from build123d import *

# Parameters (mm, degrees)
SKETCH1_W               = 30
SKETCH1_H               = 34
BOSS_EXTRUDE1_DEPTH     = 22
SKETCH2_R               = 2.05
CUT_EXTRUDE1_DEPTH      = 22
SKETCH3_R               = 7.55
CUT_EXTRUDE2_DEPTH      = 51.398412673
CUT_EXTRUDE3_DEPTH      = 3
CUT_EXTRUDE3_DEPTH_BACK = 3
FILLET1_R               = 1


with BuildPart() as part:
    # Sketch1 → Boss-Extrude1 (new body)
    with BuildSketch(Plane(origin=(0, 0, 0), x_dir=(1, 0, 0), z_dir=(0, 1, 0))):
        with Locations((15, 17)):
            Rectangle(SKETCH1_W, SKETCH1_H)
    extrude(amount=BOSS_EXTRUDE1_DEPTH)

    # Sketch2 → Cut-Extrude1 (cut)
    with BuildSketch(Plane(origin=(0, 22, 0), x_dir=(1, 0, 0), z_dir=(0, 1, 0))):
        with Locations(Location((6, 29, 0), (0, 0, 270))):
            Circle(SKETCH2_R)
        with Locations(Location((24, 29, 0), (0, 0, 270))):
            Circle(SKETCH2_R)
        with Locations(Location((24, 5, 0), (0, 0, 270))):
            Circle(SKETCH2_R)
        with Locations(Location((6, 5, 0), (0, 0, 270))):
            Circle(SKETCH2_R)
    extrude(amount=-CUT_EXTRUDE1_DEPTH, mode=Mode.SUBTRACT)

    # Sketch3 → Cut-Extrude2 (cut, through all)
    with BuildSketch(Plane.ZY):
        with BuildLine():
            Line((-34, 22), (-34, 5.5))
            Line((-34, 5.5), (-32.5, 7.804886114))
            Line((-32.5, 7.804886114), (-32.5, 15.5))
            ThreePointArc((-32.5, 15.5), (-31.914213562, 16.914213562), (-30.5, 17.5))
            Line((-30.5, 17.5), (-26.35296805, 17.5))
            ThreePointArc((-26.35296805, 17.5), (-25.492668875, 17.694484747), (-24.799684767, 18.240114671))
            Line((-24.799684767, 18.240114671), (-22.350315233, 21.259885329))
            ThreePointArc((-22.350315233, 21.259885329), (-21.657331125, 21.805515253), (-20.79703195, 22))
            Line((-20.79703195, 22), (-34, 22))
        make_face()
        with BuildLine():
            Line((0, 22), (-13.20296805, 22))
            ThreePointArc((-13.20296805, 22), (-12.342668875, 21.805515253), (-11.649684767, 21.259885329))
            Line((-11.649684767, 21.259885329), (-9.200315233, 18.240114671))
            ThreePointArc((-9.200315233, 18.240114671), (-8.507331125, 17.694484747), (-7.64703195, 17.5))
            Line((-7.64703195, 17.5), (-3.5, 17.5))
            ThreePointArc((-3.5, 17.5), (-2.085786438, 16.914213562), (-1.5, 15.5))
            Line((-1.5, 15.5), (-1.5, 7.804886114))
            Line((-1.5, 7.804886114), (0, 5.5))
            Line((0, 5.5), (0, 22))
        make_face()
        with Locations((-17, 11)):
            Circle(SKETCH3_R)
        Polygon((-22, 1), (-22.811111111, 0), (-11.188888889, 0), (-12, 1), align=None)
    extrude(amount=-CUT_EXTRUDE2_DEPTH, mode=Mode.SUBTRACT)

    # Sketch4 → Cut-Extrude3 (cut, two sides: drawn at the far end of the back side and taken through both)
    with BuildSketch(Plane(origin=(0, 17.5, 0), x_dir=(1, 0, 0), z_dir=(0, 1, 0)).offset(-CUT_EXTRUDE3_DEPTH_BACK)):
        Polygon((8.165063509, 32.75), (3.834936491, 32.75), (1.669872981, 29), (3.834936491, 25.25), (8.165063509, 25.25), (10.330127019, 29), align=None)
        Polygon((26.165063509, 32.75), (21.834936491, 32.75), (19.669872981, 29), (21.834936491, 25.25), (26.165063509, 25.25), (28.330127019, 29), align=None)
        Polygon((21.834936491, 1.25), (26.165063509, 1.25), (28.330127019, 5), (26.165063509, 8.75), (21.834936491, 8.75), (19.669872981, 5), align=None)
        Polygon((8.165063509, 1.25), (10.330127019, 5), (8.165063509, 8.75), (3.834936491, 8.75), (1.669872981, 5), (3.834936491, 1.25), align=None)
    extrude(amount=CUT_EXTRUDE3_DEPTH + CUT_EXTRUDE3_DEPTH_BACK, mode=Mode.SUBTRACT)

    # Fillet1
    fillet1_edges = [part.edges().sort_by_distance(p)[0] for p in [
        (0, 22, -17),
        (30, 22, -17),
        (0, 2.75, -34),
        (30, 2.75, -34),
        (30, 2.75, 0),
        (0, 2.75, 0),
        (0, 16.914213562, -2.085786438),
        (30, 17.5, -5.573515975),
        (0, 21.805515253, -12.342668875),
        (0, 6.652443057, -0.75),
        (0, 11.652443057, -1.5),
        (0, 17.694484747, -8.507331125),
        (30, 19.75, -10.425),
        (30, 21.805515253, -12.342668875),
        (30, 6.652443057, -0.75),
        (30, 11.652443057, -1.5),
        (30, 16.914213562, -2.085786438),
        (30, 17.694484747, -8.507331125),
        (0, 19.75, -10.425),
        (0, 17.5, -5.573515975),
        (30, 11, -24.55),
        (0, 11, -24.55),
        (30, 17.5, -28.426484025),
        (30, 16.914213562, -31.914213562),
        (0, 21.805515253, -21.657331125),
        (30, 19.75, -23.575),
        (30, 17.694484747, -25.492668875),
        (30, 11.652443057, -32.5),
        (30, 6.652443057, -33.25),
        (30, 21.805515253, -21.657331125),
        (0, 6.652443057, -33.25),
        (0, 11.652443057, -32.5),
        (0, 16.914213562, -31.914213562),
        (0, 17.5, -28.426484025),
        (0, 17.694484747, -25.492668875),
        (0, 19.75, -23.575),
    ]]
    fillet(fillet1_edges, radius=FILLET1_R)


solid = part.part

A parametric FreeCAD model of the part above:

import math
import FreeCAD as App
import Part
import Sketcher
Q = App.Units.Quantity


def edges_at(feature, points):
    """Names of the edges that pass closest to the given points."""
    edges = feature.Shape.Edges
    near = lambda p: min(range(len(edges)), key=lambda i: edges[i].distToShape(Part.Vertex(*p))[0])
    return sorted({f"Edge{near(p) + 1}" for p in points})


def add_polygon(sketch, points):
    """Adds a closed chain of lines whose ends are joined by coincident constraints."""
    first, n = sketch.GeometryCount, len(points)
    for a, b in zip(points, points[1:] + points[:1]):
        sketch.addGeometry(Part.LineSegment(App.Vector(*a, 0), App.Vector(*b, 0)), False)
    for i in range(n):
        sketch.addConstraint(Sketcher.Constraint("Coincident", first + i, 2, first + (i + 1) % n, 1))

doc = App.newDocument("Part")
body = doc.addObject("PartDesign::Body", "Body")

sketch1 = body.newObject("Sketcher::SketchObject", "Sketch")
sketch1.AttachmentSupport = (doc.getObject("XZ_Plane"), [""])
sketch1.MapMode = "FlatFace"
add_polygon(sketch1, [(0, -34), (0, 0), (30, 0), (30, -34)])
sketch1.addConstraint([
    Sketcher.Constraint("Vertical", 0),
    Sketcher.Constraint("Horizontal", 1),
    Sketcher.Constraint("Vertical", 2),
    Sketcher.Constraint("Horizontal", 3),
    Sketcher.Constraint("Coincident", 0, 2, -1, 1),
    Sketcher.Constraint("DistanceX", 1, 1, 1, 2, Q("30 mm")),
    Sketcher.Constraint("DistanceY", 0, 1, 0, 2, Q("34 mm")),
])
pad1 = body.newObject("PartDesign::Pad", "Pad")
pad1.Profile = sketch1
pad1.Length = 22
pad1.Reversed = True

sketch2 = body.newObject("Sketcher::SketchObject", "Sketch001")
sketch2.AttachmentSupport = (doc.getObject("XZ_Plane"), [""])
sketch2.MapMode = "FlatFace"
sketch2.AttachmentOffset = App.Placement(App.Vector(0, 0, -22), App.Rotation())
sketch2.addGeometry([
    Part.Circle(App.Vector(6, -29, 0), App.Vector(0, 0, 1), 2),
    Part.Circle(App.Vector(24, -29, 0), App.Vector(0, 0, 1), 2),
    Part.Circle(App.Vector(24, -5, 0), App.Vector(0, 0, 1), 2),
    Part.Circle(App.Vector(6, -5, 0), App.Vector(0, 0, 1), 2),
], False)
sketch2.addConstraint([
    Sketcher.Constraint("Equal", 0, 1),
    Sketcher.Constraint("Equal", 1, 2),
    Sketcher.Constraint("Equal", 2, 3),
    Sketcher.Constraint("Horizontal", 0, 3, 1, 3),
    Sketcher.Constraint("Horizontal", 2, 3, 3, 3),
    Sketcher.Constraint("Vertical", 1, 3, 2, 3),
    Sketcher.Constraint("Vertical", 0, 3, 3, 3),
    Sketcher.Constraint("Diameter", 0, Q("4.1 mm")),
    Sketcher.Constraint("DistanceX", -1, 1, 0, 3, Q("6 mm")),
    Sketcher.Constraint("DistanceY", 0, 3, -1, 1, Q("29 mm")),
    Sketcher.Constraint("DistanceX", -1, 1, 1, 3, Q("24 mm")),
    Sketcher.Constraint("DistanceY", 2, 3, -1, 1, Q("5 mm")),
])
pocket1 = body.newObject("PartDesign::Pocket", "Pocket")
pocket1.Profile = sketch2
pocket1.Length = 22
pocket1.Reversed = True

sketch3 = body.newObject("Sketcher::SketchObject", "Sketch002")
sketch3.AttachmentSupport = (doc.getObject("YZ_Plane"), [""])
sketch3.MapMode = "FlatFace"
sketch3.addGeometry(Part.LineSegment(App.Vector(22, -34, 0), App.Vector(5.5, -34, 0)), False)
sketch3.addGeometry(Part.LineSegment(App.Vector(5.5, -34, 0), App.Vector(7.8, -32.5, 0)), False)
sketch3.addGeometry(Part.LineSegment(App.Vector(7.8, -32.5, 0), App.Vector(15.5, -32.5, 0)), False)
sketch3.addGeometry(Part.ArcOfCircle(Part.Circle(App.Vector(15.5, -30.5, 0), App.Vector(0, 0, 1), 2), math.radians(-90), math.radians(0)), False)
sketch3.addGeometry(Part.LineSegment(App.Vector(17.5, -30.5, 0), App.Vector(17.5, -26.4, 0)), False)
sketch3.addGeometry(Part.ArcOfCircle(Part.Circle(App.Vector(19.5, -26.4, 0), App.Vector(0, 0, 1), 2), math.radians(129), math.radians(180)), False)
sketch3.addGeometry(Part.LineSegment(App.Vector(18.2, -24.8, 0), App.Vector(21.3, -22.4, 0)), False)
sketch3.addGeometry(Part.ArcOfCircle(Part.Circle(App.Vector(20, -20.8, 0), App.Vector(0, 0, 1), 2), math.radians(-51), math.radians(0)), False)
sketch3.addGeometry(Part.LineSegment(App.Vector(22, -20.8, 0), App.Vector(22, -34, 0)), False)
sketch3.addGeometry(Part.LineSegment(App.Vector(22, 0, 0), App.Vector(22, -13.2, 0)), False)
sketch3.addGeometry(Part.ArcOfCircle(Part.Circle(App.Vector(20, -13.2, 0), App.Vector(0, 0, 1), 2), math.radians(0), math.radians(51)), False)
sketch3.addGeometry(Part.LineSegment(App.Vector(21.3, -11.6, 0), App.Vector(18.2, -9.2, 0)), False)
sketch3.addGeometry(Part.ArcOfCircle(Part.Circle(App.Vector(19.5, -7.6, 0), App.Vector(0, 0, 1), 2), math.radians(-180), math.radians(-129)), False)
sketch3.addGeometry(Part.LineSegment(App.Vector(17.5, -7.6, 0), App.Vector(17.5, -3.5, 0)), False)
sketch3.addGeometry(Part.ArcOfCircle(Part.Circle(App.Vector(15.5, -3.5, 0), App.Vector(0, 0, 1), 2), math.radians(0), math.radians(90)), False)
sketch3.addGeometry(Part.LineSegment(App.Vector(15.5, -1.5, 0), App.Vector(7.8, -1.5, 0)), False)
sketch3.addGeometry(Part.LineSegment(App.Vector(7.8, -1.5, 0), App.Vector(5.5, 0, 0)), False)
sketch3.addGeometry(Part.LineSegment(App.Vector(5.5, 0, 0), App.Vector(22, 0, 0)), False)
sketch3.addGeometry(Part.Circle(App.Vector(11, -17, 0), App.Vector(0, 0, 1), 7.5), False)
add_polygon(sketch3, [(1, -22), (0, -22.8), (0, -11.2), (1, -12)])
sketch3.addConstraint([
    Sketcher.Constraint("Coincident", 0, 2, 1, 1),
    Sketcher.Constraint("Coincident", 1, 2, 2, 1),
    Sketcher.Constraint("Tangent", 2, 2, 3, 1),
    Sketcher.Constraint("Tangent", 3, 2, 4, 1),
    Sketcher.Constraint("Tangent", 4, 2, 5, 2),
    Sketcher.Constraint("Tangent", 5, 1, 6, 1),
    Sketcher.Constraint("Tangent", 6, 2, 7, 1),
    Sketcher.Constraint("Tangent", 7, 2, 8, 1),
    Sketcher.Constraint("Coincident", 8, 2, 0, 1),
    Sketcher.Constraint("Tangent", 9, 2, 10, 1),
    Sketcher.Constraint("Tangent", 10, 2, 11, 1),
    Sketcher.Constraint("Tangent", 11, 2, 12, 2),
    Sketcher.Constraint("Tangent", 12, 1, 13, 1),
    Sketcher.Constraint("Tangent", 13, 2, 14, 1),
    Sketcher.Constraint("Tangent", 14, 2, 15, 1),
    Sketcher.Constraint("Coincident", 15, 2, 16, 1),
    Sketcher.Constraint("Coincident", 16, 2, 17, 1),
    Sketcher.Constraint("Coincident", 17, 2, 9, 1),
    Sketcher.Constraint("Horizontal", 0),
    Sketcher.Constraint("Horizontal", 2),
    Sketcher.Constraint("Vertical", 4),
    Sketcher.Constraint("Vertical", 8),
    Sketcher.Constraint("Vertical", 9),
    Sketcher.Constraint("Vertical", 13),
    Sketcher.Constraint("Horizontal", 15),
    Sketcher.Constraint("Horizontal", 17),
    Sketcher.Constraint("Vertical", 20),
    Sketcher.Constraint("Vertical", 22),
    Sketcher.Constraint("Equal", 3, 5),
    Sketcher.Constraint("Equal", 5, 7),
    Sketcher.Constraint("Equal", 7, 10),
    Sketcher.Constraint("Equal", 10, 12),
    Sketcher.Constraint("Equal", 12, 14),
    Sketcher.Constraint("PointOnObject", 16, 2, -1),
    Sketcher.Constraint("PointOnObject", 19, 2, -2),
    Sketcher.Constraint("Parallel", 6, 19),
    Sketcher.Constraint("Parallel", 11, 21),
    Sketcher.Constraint("Vertical", 7, 3, 10, 3),
    Sketcher.Constraint("Vertical", 5, 3, 12, 3),
    Sketcher.Constraint("Vertical", 6, 2, 10, 2),
    Sketcher.Constraint("Vertical", 1, 2, 15, 2),
    Sketcher.Constraint("Vertical", 0, 2, 16, 2),
    Sketcher.Constraint("Equal", 8, 9),
    Sketcher.Constraint("Equal", 4, 13),
    Sketcher.Constraint("Radius", 3, Q("2 mm")),
    Sketcher.Constraint("Diameter", 18, Q("15.1 mm")),
    Sketcher.Constraint("DistanceY", 22, 2, 22, 1, Q("10 mm")),
    Sketcher.Constraint("DistanceX", 0, 2, 0, 1, Q("16.5 mm")),
    Sketcher.Constraint("DistanceX", -1, 1, 7, 3, Q("20 mm")),
    Sketcher.Constraint("DistanceX", -1, 1, 18, 3, Q("11 mm")),
    Sketcher.Constraint("DistanceY", 18, 3, -1, 1, Q("17 mm")),
    Sketcher.Constraint("DistanceY", 0, 2, -1, 1, Q("34 mm")),
    Sketcher.Constraint("DistanceX", -1, 1, 21, 2, Q("1 mm")),
    Sketcher.Constraint("DistanceY", 21, 2, -1, 1, Q("12 mm")),
    Sketcher.Constraint("DistanceY", 3, 3, 14, 3, Q("27 mm")),
    Sketcher.Constraint("DistanceX", 0, 2, 3, 3, Q("10 mm")),
    Sketcher.Constraint("Distance", 1, Q("2.75 mm")),
    Sketcher.Constraint("DistanceY", 5, 3, 10, 3, Q("13.15 mm")),
    Sketcher.Constraint("DistanceY", 4, 1, 4, 2, Q("4.147032 mm")),
])
pocket2 = body.newObject("PartDesign::Pocket", "Pocket001")
pocket2.Profile = sketch3
pocket2.Type = "ThroughAll"
pocket2.Reversed = True

sketch4 = body.newObject("Sketcher::SketchObject", "Sketch003")
sketch4.AttachmentSupport = (doc.getObject("XZ_Plane"), [""])
sketch4.MapMode = "FlatFace"
sketch4.AttachmentOffset = App.Placement(App.Vector(0, 0, -17.5), App.Rotation())
add_polygon(sketch4, [(8.2, -32.8), (3.8, -32.8), (1.7, -29), (3.8, -25.2), (8.2, -25.2), (10.3, -29)])
add_polygon(sketch4, [(26.2, -32.8), (21.8, -32.8), (19.7, -29), (21.8, -25.2), (26.2, -25.2), (28.3, -29)])
add_polygon(sketch4, [(21.8, -1.2), (26.2, -1.2), (28.3, -5), (26.2, -8.8), (21.8, -8.8), (19.7, -5)])
add_polygon(sketch4, [(8.2, -1.2), (10.3, -5), (8.2, -8.8), (3.8, -8.8), (1.7, -5), (3.8, -1.2)])
sketch4.addConstraint([
    Sketcher.Constraint("Horizontal", 0),
    Sketcher.Constraint("Horizontal", 3),
    Sketcher.Constraint("Horizontal", 6),
    Sketcher.Constraint("Horizontal", 9),
    Sketcher.Constraint("Horizontal", 12),
    Sketcher.Constraint("Horizontal", 15),
    Sketcher.Constraint("Horizontal", 20),
    Sketcher.Constraint("Horizontal", 23),
    Sketcher.Constraint("Parallel", 1, 4),
    Sketcher.Constraint("Parallel", 2, 5),
    Sketcher.Constraint("Parallel", 4, 7),
    Sketcher.Constraint("Parallel", 5, 8),
    Sketcher.Constraint("Parallel", 7, 10),
    Sketcher.Constraint("Parallel", 8, 11),
    Sketcher.Constraint("Parallel", 10, 13),
    Sketcher.Constraint("Parallel", 11, 14),
    Sketcher.Constraint("Parallel", 13, 16),
    Sketcher.Constraint("Parallel", 14, 17),
    Sketcher.Constraint("Parallel", 16, 18),
    Sketcher.Constraint("Parallel", 17, 19),
    Sketcher.Constraint("Parallel", 18, 21),
    Sketcher.Constraint("Parallel", 19, 22),
    Sketcher.Constraint("Horizontal", 1, 2, 4, 2),
    Sketcher.Constraint("Horizontal", 5, 2, 6, 2),
    Sketcher.Constraint("Horizontal", 4, 2, 7, 2),
    Sketcher.Constraint("Horizontal", 3, 2, 8, 2),
    Sketcher.Constraint("Horizontal", 7, 2, 10, 2),
    Sketcher.Constraint("Horizontal", 13, 2, 16, 2),
    Sketcher.Constraint("Horizontal", 16, 2, 18, 2),
    Sketcher.Constraint("Horizontal", 15, 2, 19, 2),
    Sketcher.Constraint("Horizontal", 18, 2, 21, 2),
    Sketcher.Constraint("Horizontal", 17, 2, 22, 2),
    Sketcher.Constraint("Vertical", 0, 2, 2, 2),
    Sketcher.Constraint("Vertical", 3, 2, 5, 2),
    Sketcher.Constraint("Vertical", 11, 2, 12, 2),
    Sketcher.Constraint("Vertical", 10, 2, 13, 2),
    Sketcher.Constraint("Vertical", 12, 2, 14, 2),
    Sketcher.Constraint("Vertical", 8, 2, 15, 2),
    Sketcher.Constraint("Vertical", 4, 2, 18, 2),
    Sketcher.Constraint("Vertical", 2, 2, 20, 2),
    Sketcher.Constraint("Equal", 3, 6),
    Sketcher.Constraint("Angle", 1, Q("120 deg")),
    Sketcher.Constraint("DistanceY", 1, 2, -1, 1, Q("29 mm")),
    Sketcher.Constraint("DistanceY", 13, 2, -1, 1, Q("5 mm")),
    Sketcher.Constraint("DistanceX", 0, 2, 6, 2, Q("18 mm")),
    Sketcher.Constraint("DistanceY", 0, 2, 2, 2, Q("7.5 mm")),
    Sketcher.Constraint("DistanceX", 0, 2, 0, 1, Q("4.330127 mm")),
    Sketcher.Constraint("DistanceX", -1, 1, 0, 2, Q("3.834936 mm")),
])
pocket3 = body.newObject("PartDesign::Pocket", "Pocket002")
pocket3.Profile = sketch4
pocket3.Type = "TwoLengths"
pocket3.Length = 3
pocket3.Length2 = 3
doc.recompute()

fillet = body.newObject("PartDesign::Fillet", "Fillet")
fillet.Base = (pocket3, edges_at(pocket3, [
    (0, 22, -17),
    (30, 22, -17),
    (0, 2.75, -34),
    (30, 2.75, -34),
    (30, 2.75, 0),
    (0, 2.75, 0),
    (0, 16.914, -2.086),
    (30, 17.5, -5.574),
    (0, 21.806, -12.343),
    (0, 6.652, -0.75),
    (0, 11.652, -1.5),
    (0, 17.694, -8.507),
    (30, 19.75, -10.425),
    (30, 21.806, -12.343),
    (30, 6.652, -0.75),
    (30, 11.652, -1.5),
    (30, 16.914, -2.086),
    (30, 17.694, -8.507),
    (0, 19.75, -10.425),
    (0, 17.5, -5.574),
    (30, 11, -24.55),
    (0, 11, -24.55),
    (30, 17.5, -28.426),
    (30, 16.914, -31.914),
    (0, 21.806, -21.657),
    (30, 19.75, -23.575),
    (30, 17.694, -25.493),
    (30, 11.652, -32.5),
    (30, 6.652, -33.25),
    (30, 21.806, -21.657),
    (0, 6.652, -33.25),
    (0, 11.652, -32.5),
    (0, 16.914, -31.914),
    (0, 17.5, -28.426),
    (0, 17.694, -25.493),
    (0, 19.75, -23.575),
]))
fillet.Radius = 1

doc.recompute()
